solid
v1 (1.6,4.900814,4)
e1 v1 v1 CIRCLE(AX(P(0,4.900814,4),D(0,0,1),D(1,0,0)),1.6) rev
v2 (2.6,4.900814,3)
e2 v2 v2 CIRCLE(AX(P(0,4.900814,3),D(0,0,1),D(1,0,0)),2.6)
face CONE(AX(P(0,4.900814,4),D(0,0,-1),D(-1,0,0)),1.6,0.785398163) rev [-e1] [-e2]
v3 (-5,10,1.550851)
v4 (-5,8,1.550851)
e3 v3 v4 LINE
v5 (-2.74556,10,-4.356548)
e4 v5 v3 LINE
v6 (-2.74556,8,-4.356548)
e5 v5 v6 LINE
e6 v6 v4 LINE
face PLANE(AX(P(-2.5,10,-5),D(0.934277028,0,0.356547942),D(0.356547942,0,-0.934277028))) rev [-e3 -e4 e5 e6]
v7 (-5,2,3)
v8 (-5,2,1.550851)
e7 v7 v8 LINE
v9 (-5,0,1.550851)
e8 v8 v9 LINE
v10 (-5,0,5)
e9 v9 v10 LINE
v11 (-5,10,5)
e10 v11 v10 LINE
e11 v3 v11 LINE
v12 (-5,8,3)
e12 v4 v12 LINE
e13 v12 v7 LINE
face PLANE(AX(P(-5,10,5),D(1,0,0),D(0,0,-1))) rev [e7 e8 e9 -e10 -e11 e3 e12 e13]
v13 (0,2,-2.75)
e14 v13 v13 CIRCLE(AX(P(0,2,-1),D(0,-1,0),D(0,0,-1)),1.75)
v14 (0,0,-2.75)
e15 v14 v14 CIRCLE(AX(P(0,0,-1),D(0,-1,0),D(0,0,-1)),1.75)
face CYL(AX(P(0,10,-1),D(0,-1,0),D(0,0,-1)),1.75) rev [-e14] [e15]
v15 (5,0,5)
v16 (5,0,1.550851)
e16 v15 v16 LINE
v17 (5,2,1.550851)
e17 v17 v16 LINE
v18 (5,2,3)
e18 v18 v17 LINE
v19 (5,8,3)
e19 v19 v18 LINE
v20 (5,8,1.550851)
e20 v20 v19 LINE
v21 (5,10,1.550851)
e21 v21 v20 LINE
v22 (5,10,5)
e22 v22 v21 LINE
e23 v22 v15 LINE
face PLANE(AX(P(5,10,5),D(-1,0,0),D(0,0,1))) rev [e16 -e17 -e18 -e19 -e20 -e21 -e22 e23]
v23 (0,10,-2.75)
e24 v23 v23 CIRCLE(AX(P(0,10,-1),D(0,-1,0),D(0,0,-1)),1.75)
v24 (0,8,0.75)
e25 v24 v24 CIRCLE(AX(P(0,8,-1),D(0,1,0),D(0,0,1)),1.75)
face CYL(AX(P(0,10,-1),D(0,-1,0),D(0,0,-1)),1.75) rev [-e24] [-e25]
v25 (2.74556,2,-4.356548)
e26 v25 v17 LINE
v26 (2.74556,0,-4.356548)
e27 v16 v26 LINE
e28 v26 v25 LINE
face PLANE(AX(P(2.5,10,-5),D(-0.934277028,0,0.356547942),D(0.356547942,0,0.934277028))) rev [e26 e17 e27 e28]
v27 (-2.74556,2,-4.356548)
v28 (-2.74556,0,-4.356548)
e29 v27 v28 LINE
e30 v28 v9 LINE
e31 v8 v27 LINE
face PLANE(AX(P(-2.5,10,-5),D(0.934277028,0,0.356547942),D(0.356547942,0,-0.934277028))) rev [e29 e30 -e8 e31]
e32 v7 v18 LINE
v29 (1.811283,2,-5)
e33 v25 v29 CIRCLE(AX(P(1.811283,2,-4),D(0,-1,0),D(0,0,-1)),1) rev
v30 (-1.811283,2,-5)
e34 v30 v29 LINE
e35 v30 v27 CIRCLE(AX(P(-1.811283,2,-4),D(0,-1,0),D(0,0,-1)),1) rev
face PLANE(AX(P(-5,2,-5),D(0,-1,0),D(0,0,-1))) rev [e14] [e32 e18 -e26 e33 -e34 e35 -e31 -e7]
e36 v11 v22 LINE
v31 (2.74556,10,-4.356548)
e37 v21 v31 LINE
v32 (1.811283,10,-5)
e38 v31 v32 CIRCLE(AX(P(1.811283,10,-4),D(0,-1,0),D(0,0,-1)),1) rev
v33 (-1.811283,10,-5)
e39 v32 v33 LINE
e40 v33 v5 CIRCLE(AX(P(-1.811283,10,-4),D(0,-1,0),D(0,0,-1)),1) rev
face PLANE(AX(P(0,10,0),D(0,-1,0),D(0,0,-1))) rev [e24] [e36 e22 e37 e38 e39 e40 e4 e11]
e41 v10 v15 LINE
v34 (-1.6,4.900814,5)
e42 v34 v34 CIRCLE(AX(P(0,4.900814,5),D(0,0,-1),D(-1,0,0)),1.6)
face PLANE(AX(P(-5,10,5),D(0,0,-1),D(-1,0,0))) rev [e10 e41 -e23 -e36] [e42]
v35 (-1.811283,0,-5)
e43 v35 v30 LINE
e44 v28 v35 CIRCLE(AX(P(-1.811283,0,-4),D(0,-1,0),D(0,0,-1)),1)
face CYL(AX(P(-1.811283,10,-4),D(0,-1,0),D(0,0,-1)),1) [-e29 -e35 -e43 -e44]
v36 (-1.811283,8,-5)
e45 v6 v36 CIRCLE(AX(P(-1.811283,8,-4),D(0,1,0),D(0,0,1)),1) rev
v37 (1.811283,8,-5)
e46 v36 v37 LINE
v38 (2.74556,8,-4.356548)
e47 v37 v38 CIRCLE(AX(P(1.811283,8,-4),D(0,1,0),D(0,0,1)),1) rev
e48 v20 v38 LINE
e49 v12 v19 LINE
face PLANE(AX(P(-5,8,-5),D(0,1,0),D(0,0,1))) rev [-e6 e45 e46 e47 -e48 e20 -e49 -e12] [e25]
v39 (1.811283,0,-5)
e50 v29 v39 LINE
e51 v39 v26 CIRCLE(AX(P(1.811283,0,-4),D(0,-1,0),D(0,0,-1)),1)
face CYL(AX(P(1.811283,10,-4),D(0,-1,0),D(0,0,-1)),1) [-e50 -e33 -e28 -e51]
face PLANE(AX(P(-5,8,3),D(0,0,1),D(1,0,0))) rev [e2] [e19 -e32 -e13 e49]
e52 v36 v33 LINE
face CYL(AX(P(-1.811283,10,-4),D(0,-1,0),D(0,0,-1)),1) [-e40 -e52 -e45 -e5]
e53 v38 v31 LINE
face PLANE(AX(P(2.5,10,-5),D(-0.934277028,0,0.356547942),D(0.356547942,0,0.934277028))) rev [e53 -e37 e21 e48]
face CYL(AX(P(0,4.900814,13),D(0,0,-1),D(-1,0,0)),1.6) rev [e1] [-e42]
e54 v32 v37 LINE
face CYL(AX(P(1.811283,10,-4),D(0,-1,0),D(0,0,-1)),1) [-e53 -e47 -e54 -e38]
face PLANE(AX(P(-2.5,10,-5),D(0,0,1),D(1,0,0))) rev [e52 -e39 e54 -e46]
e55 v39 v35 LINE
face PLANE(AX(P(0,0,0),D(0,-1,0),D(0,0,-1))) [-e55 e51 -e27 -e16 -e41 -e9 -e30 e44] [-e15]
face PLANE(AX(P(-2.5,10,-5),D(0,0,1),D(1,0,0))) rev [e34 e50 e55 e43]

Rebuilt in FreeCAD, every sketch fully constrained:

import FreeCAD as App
import Part
import Sketcher

V = App.Vector
Q = App.Units.Quantity


def edges_at(feature, points):
    """Names of the edges that pass closest to the given points."""
    edges = feature.Shape.Edges
    near = lambda p: min(range(len(edges)), key=lambda i: edges[i].distToShape(Part.Vertex(*p))[0])
    return sorted({f"Edge{near(p) + 1}" for p in points})


def add_polygon(sketch, points):
    """Adds a closed chain of lines whose ends are joined by coincident constraints."""
    first, n = sketch.GeometryCount, len(points)
    for a, b in zip(points, points[1:] + points[:1]):
        sketch.addGeometry(Part.LineSegment(App.Vector(*a, 0), App.Vector(*b, 0)), False)
    for i in range(n):
        sketch.addConstraint(Sketcher.Constraint("Coincident", first + i, 2, first + (i + 1) % n, 1))

doc = App.newDocument("Part")
body = doc.addObject("PartDesign::Body", "Body")

# Sketch on XZ plane
sketch1 = doc.addObject("Sketcher::SketchObject", "Sketch")
body.addObject(sketch1)
sketch1.AttachmentSupport = (doc.XZ_Plane, [""])
sketch1.MapMode = "FlatFace"
add_polygon(sketch1, [(-2.5, -5), (-5, 1.6), (-5, 5), (5, 5), (5, 1.6), (2.5, -5)])  # lines 0-5
sketch1.addConstraint([
    Sketcher.Constraint("Vertical", 1),
    Sketcher.Constraint("Horizontal", 2),
    Sketcher.Constraint("Vertical", 3),
    Sketcher.Constraint("Horizontal", 5),
    Sketcher.Constraint("Symmetric", 0, 2, 3, 2, -2),
    Sketcher.Constraint("Equal", 0, 4),
    Sketcher.Constraint("DistanceX", 2, 1, 2, 2, Q("10 mm")),
    Sketcher.Constraint("DistanceX", 5, 2, 5, 1, Q("5 mm")),
    Sketcher.Constraint("DistanceY", -1, 1, 1, 2, Q("5 mm")),
    Sketcher.Constraint("DistanceY", 4, 2, -1, 1, Q("5 mm")),
    Sketcher.Constraint("DistanceY", 1, 1, 1, 2, Q("3.449149 mm")),
])
pad1 = doc.addObject("PartDesign::Pad", "Pad")
body.addObject(pad1)
pad1.Profile = sketch1
pad1.Length = 10
pad1.Reversed = True

# Sketch on YZ plane
sketch2 = doc.addObject("Sketcher::SketchObject", "Sketch001")
body.addObject(sketch2)
sketch2.AttachmentSupport = (doc.YZ_Plane, [""])
sketch2.MapMode = "FlatFace"
sketch2.AttachmentOffset = App.Placement(V(0, 0, 5), App.Rotation())
add_polygon(sketch2, [(8, 3), (2, 3), (2, -5), (8, -5)])  # lines 0-3
sketch2.addConstraint([
    Sketcher.Constraint("Horizontal", 0),
    Sketcher.Constraint("Vertical", 1),
    Sketcher.Constraint("Horizontal", 2),
    Sketcher.Constraint("Vertical", 3),
    Sketcher.Constraint("DistanceX", 0, 2, 0, 1, Q("6 mm")),
    Sketcher.Constraint("DistanceY", 1, 2, 1, 1, Q("8 mm")),
    Sketcher.Constraint("DistanceX", -1, 1, 0, 2, Q("2 mm")),
    Sketcher.Constraint("DistanceY", -1, 1, 0, 2, Q("3 mm")),
])
pocket1 = doc.addObject("PartDesign::Pocket", "Pocket")
body.addObject(pocket1)
pocket1.Profile = sketch2
pocket1.Length = 10

# Sketch on XZ plane
sketch3 = doc.addObject("Sketcher::SketchObject", "Sketch002")
body.addObject(sketch3)
sketch3.AttachmentSupport = (doc.XZ_Plane, [""])
sketch3.MapMode = "FlatFace"
sketch3.addGeometry(Part.Circle(V(0, -1, 0), V(0, 0, 1), 1.8), False)
sketch3.addConstraint([
    Sketcher.Constraint("PointOnObject", 0, 3, -2),
    Sketcher.Constraint("Diameter", 0, Q("3.5 mm")),
    Sketcher.Constraint("DistanceY", 0, 3, -1, 1, Q("1 mm")),
])
pocket2 = doc.addObject("PartDesign::Pocket", "Pocket001")
body.addObject(pocket2)
pocket2.Profile = sketch3
pocket2.Length = 10
doc.recompute()

fillet = doc.addObject("PartDesign::Fillet", "Fillet")
body.addObject(fillet)
fillet.Base = (pocket2, edges_at(pocket2, [
    (-2.5, 9, -5),
    (2.5, 9, -5),
    (-2.5, 1, -5),
    (2.5, 1, -5),
]))
fillet.Radius = 1

# Sketch on XY plane
sketch4 = doc.addObject("Sketcher::SketchObject", "Sketch003")
body.addObject(sketch4)
sketch4.AttachmentSupport = (doc.XY_Plane, [""])
sketch4.MapMode = "FlatFace"
sketch4.AttachmentOffset = App.Placement(V(0, 0, 3), App.Rotation())
sketch4.addGeometry(Part.Circle(V(0, 4.9, 0), V(0, 0, 1), 1.6), False)
sketch4.addConstraint([
    Sketcher.Constraint("PointOnObject", 0, 3, -2),
    Sketcher.Constraint("Diameter", 0, Q("3.2 mm")),
    Sketcher.Constraint("DistanceY", -1, 1, 0, 3, Q("4.900814 mm")),
])
pocket3 = doc.addObject("PartDesign::Pocket", "Pocket002")
body.addObject(pocket3)
pocket3.Profile = sketch4
pocket3.Length = 10
pocket3.Reversed = True
doc.recompute()

chamfer = doc.addObject("PartDesign::Chamfer", "Chamfer")
body.addObject(chamfer)
chamfer.Base = (pocket3, edges_at(pocket3, [(1.6, 4.901, 3)]))
chamfer.Size = 1

doc.recompute()
